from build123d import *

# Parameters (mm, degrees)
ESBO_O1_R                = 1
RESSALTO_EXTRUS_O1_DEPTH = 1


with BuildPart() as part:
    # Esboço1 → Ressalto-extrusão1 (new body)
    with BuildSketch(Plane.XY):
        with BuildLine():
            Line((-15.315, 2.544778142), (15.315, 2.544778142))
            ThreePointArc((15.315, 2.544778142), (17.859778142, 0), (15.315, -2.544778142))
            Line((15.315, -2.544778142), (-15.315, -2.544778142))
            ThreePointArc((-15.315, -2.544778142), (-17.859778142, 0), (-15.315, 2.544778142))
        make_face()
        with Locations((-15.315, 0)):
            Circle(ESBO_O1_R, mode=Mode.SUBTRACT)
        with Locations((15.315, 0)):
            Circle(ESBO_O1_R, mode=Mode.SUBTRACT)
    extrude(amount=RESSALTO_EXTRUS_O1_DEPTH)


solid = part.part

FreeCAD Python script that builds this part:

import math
import FreeCAD as App
import Part
import Sketcher
Q = App.Units.Quantity

doc = App.newDocument("Part")
body = doc.addObject("PartDesign::Body", "Body")

sketch1 = body.newObject("Sketcher::SketchObject", "Sketch")
sketch1.AttachmentSupport = (doc.getObject("XY_Plane"), [""])
sketch1.MapMode = "FlatFace"
sketch1.addGeometry(Part.LineSegment(App.Vector(15.3, 2.5, 0), App.Vector(-15.3, 2.5, 0)), False)
sketch1.addGeometry(Part.ArcOfCircle(Part.Circle(App.Vector(-15.3, 0, 0), App.Vector(0, 0, 1), 2.5), math.radians(90), math.radians(270)), False)
sketch1.addGeometry(Part.LineSegment(App.Vector(-15.3, -2.5, 0), App.Vector(15.3, -2.5, 0)), False)
sketch1.addGeometry(Part.ArcOfCircle(Part.Circle(App.Vector(15.3, 0, 0), App.Vector(0, 0, 1), 2.5), math.radians(-90), math.radians(90)), False)
sketch1.addGeometry(Part.Circle(App.Vector(15.3, 0, 0), App.Vector(0, 0, 1), 1), False)
sketch1.addGeometry(Part.Circle(App.Vector(-15.3, 0, 0), App.Vector(0, 0, 1), 1), False)
sketch1.addConstraint(Sketcher.Constraint("Tangent", 0, 2, 1, 1))
sketch1.addConstraint(Sketcher.Constraint("Tangent", 1, 2, 2, 1))
sketch1.addConstraint(Sketcher.Constraint("Tangent", 2, 2, 3, 1))
sketch1.addConstraint(Sketcher.Constraint("Tangent", 3, 2, 0, 1))
sketch1.addConstraint(Sketcher.Constraint("Horizontal", 0))
sketch1.addConstraint(Sketcher.Constraint("Horizontal", 2))
sketch1.addConstraint(Sketcher.Constraint("Coincident", 4, 3, 3, 3))
sketch1.addConstraint(Sketcher.Constraint("Coincident", 5, 3, 1, 3))
sketch1.addConstraint(Sketcher.Constraint("Equal", 4, 5))
sketch1.addConstraint(Sketcher.Constraint("Symmetric", 1, 3, 3, 3, -1, 1))
sketch1.addConstraint(Sketcher.Constraint("Diameter", 4, Q("2 mm")))
sketch1.addConstraint(Sketcher.Constraint("DistanceX", 0, 2, 0, 1, Q("30.63 mm")))
sketch1.addConstraint(Sketcher.Constraint("Radius", 1, Q("2.544778 mm")))
pad1 = body.newObject("PartDesign::Pad", "Pad")
pad1.Profile = sketch1
pad1.Length = 1

doc.recompute()
